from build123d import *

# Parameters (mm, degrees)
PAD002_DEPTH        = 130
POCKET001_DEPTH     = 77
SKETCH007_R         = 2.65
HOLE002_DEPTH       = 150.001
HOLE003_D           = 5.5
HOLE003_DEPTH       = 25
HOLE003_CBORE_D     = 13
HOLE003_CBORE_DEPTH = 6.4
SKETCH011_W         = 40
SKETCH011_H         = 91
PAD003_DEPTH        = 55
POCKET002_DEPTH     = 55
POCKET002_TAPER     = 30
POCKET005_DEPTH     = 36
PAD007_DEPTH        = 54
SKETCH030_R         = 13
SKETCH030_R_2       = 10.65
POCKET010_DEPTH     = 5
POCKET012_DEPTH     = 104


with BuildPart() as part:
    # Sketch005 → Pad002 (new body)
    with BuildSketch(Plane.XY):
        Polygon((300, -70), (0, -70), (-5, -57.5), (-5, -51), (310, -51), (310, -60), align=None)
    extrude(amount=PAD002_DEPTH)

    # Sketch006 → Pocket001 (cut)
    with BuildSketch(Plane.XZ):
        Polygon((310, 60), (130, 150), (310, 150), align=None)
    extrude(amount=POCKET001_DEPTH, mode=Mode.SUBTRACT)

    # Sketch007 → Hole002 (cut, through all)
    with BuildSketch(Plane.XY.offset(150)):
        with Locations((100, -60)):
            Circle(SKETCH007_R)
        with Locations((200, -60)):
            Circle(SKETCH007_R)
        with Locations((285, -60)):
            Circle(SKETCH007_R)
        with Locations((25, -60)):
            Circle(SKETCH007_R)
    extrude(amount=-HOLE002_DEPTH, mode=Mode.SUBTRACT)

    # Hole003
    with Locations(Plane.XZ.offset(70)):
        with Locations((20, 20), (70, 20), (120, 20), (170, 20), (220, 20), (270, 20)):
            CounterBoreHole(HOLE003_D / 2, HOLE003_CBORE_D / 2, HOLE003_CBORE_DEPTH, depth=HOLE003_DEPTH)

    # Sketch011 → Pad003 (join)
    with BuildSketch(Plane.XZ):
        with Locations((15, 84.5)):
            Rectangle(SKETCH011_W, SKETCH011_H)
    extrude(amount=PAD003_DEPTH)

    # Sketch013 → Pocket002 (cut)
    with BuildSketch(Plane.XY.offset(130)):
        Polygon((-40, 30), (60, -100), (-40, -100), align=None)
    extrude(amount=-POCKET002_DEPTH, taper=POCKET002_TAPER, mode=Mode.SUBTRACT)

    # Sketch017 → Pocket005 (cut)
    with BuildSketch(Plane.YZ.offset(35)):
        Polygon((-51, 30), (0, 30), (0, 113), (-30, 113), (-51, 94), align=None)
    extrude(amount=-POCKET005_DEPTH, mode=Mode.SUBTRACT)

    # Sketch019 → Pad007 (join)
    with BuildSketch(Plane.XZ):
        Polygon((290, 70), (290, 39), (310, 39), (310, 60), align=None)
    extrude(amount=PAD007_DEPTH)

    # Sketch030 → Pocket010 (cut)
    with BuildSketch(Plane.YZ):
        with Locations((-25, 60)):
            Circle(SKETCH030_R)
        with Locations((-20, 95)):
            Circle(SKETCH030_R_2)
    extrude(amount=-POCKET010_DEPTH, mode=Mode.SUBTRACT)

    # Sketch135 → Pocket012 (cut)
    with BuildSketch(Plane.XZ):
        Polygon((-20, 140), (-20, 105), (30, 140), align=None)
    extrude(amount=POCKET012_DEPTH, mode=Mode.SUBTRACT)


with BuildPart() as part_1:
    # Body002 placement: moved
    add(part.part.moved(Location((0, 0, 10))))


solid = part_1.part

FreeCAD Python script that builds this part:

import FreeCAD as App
import Part
import Sketcher
Q = App.Units.Quantity

doc = App.newDocument("Part")
params = doc.addObject("Spreadsheet::Sheet", "Params")
for row, (alias, value) in enumerate([
    ("sketch1_width", "300 mm"),
    ("sketch1_width2", "315 mm"),
    ("sketch1_height", "9 mm"),
    ("sketch1_height2", "6.5 mm"),
    ("pad1_length", "130 mm"),
    ("sketch2_width", "180 mm"),
    ("sketch2_height", "90 mm"),
    ("pocket1_length", "77 mm"),
    ("sketch3_diameter", "5.3 mm"),
    ("sketch4_diameter", "5.5 mm"),
    ("hole_diameter", "5.5 mm"),
    ("hole_depth", "25 mm"),
    ("hole_cbore_diameter", "13 mm"),
    ("hole_cbore_depth", "6.4 mm"),
    ("sketch5_width", "40 mm"),
    ("sketch5_height", "91 mm"),
    ("pad2_length", "55 mm"),
    ("sketch6_width", "100 mm"),
    ("sketch6_height", "130 mm"),
    ("pocket3_length", "55 mm"),
    ("pocket3_taper", "-30 deg"),
    ("sketch7_width", "51 mm"),
    ("sketch7_width2", "30 mm"),
    ("sketch7_height", "83 mm"),
    ("sketch7_height2", "64 mm"),
    ("pocket4_length", "36 mm"),
    ("sketch8_width", "20 mm"),
    ("sketch8_height", "31 mm"),
    ("sketch8_height2", "21 mm"),
    ("pad3_length", "54 mm"),
    ("sketch9_diameter", "26 mm"),
    ("sketch9_diameter2", "21.3 mm"),
    ("pocket5_length", "5 mm"),
    ("sketch10_width", "50 mm"),
    ("sketch10_height", "35 mm"),
    ("pocket6_length", "104 mm"),
], start=1):
    params.set(f"A{row}", alias)
    params.set(f"B{row}", "=" + value)
    params.setAlias(f"B{row}", alias)

body = doc.addObject("PartDesign::Body", "Body")

# Sketch on XY plane
sketch1 = body.newObject("Sketcher::SketchObject", "Sketch")
sketch1.AttachmentSupport = (doc.getObject("XY_Plane"), [""])
sketch1.MapMode = "FlatFace"
sketch1.addGeometry([
    Part.LineSegment(App.Vector(0, -70, 0), App.Vector(300, -70, 0)),  # 0
    Part.LineSegment(App.Vector(300, -70, 0), App.Vector(310, -60, 0)),  # 1
    Part.LineSegment(App.Vector(310, -60, 0), App.Vector(310, -51, 0)),  # 2
    Part.LineSegment(App.Vector(310, -51, 0), App.Vector(-5, -51, 0)),  # 3
    Part.LineSegment(App.Vector(-5, -51, 0), App.Vector(-5, -58, 0)),  # 4
    Part.LineSegment(App.Vector(-5, -58, 0), App.Vector(0, -70, 0)),  # 5
], False)
sketch1.addConstraint([
    Sketcher.Constraint("Coincident", 0, 2, 1, 1),
    Sketcher.Constraint("Coincident", 1, 2, 2, 1),
    Sketcher.Constraint("Coincident", 2, 2, 3, 1),
    Sketcher.Constraint("Coincident", 3, 2, 4, 1),
    Sketcher.Constraint("Coincident", 4, 2, 5, 1),
    Sketcher.Constraint("Coincident", 5, 2, 0, 1),
    Sketcher.Constraint("Horizontal", 0),
    Sketcher.Constraint("Vertical", 2),
    Sketcher.Constraint("Horizontal", 3),
    Sketcher.Constraint("Vertical", 4),
    Sketcher.Constraint("PointOnObject", 5, 2, -2),
    Sketcher.Constraint("DistanceX", 0, 1, 0, 2, Q("300 mm")),
    Sketcher.Constraint("DistanceX", 3, 2, 3, 1, Q("315 mm")),
    Sketcher.Constraint("DistanceY", 2, 1, 2, 2, Q("9 mm")),
    Sketcher.Constraint("Angle", 1, Q("45 deg")),
    Sketcher.Constraint("DistanceY", 4, 2, 4, 1, Q("6.5 mm")),
    Sketcher.Constraint("DistanceY", 0, 2, -1, 1, Q("70 mm")),
    Sketcher.Constraint("DistanceX", -1, 1, 1, 2, Q("310 mm")),
])
sketch1.setExpression("Constraints[11]", "Params.sketch1_width")
sketch1.setExpression("Constraints[12]", "Params.sketch1_width2")
sketch1.setExpression("Constraints[13]", "Params.sketch1_height")
sketch1.setExpression("Constraints[15]", "Params.sketch1_height2")
pad1 = body.newObject("PartDesign::Pad", "Pad")
pad1.Profile = sketch1
pad1.setExpression("Length", "Params.pad1_length")

# Sketch on XZ plane
sketch2 = body.newObject("Sketcher::SketchObject", "Sketch001")
sketch2.AttachmentSupport = (doc.getObject("XZ_Plane"), [""])
sketch2.MapMode = "FlatFace"
sketch2.addGeometry([
    Part.LineSegment(App.Vector(130, 150, 0), App.Vector(310, 60, 0)),
    Part.LineSegment(App.Vector(310, 60, 0), App.Vector(310, 150, 0)),
    Part.LineSegment(App.Vector(310, 150, 0), App.Vector(130, 150, 0)),
], False)
sketch2.addConstraint([
    Sketcher.Constraint("Coincident", 0, 2, 1, 1),
    Sketcher.Constraint("Coincident", 1, 2, 2, 1),
    Sketcher.Constraint("Coincident", 2, 2, 0, 1),
    Sketcher.Constraint("Vertical", 1),
    Sketcher.Constraint("Horizontal", 2),
    Sketcher.Constraint("DistanceX", 2, 2, 2, 1, Q("180 mm")),
    Sketcher.Constraint("DistanceY", 1, 1, 1, 2, Q("90 mm")),
    Sketcher.Constraint("DistanceX", -1, 1, 0, 2, Q("310 mm")),
    Sketcher.Constraint("DistanceY", -1, 1, 0, 2, Q("60 mm")),
])
sketch2.setExpression("Constraints[5]", "Params.sketch2_width")
sketch2.setExpression("Constraints[6]", "Params.sketch2_height")
pocket1 = body.newObject("PartDesign::Pocket", "Pocket")
pocket1.Profile = sketch2
pocket1.setExpression("Length", "Params.pocket1_length")
pocket1.Reversed = True

# Sketch on XY plane
sketch3 = body.newObject("Sketcher::SketchObject", "Sketch002")
sketch3.AttachmentSupport = (doc.getObject("XY_Plane"), [""])
sketch3.MapMode = "FlatFace"
sketch3.AttachmentOffset = App.Placement(App.Vector(0, 0, 150), App.Rotation())
sketch3.addGeometry([
    Part.Circle(App.Vector(100, -60, 0), App.Vector(0, 0, 1), 2.6),
    Part.Circle(App.Vector(200, -60, 0), App.Vector(0, 0, 1), 2.6),
    Part.Circle(App.Vector(285, -60, 0), App.Vector(0, 0, 1), 2.6),
    Part.Circle(App.Vector(25, -60, 0), App.Vector(0, 0, 1), 2.6),
], False)
sketch3.addConstraint([
    Sketcher.Constraint("Equal", 0, 1),
    Sketcher.Constraint("Equal", 1, 2),
    Sketcher.Constraint("Equal", 2, 3),
    Sketcher.Constraint("Horizontal", 0, 3, 1, 3),
    Sketcher.Constraint("Horizontal", 1, 3, 2, 3),
    Sketcher.Constraint("Horizontal", 2, 3, 3, 3),
    Sketcher.Constraint("Diameter", 0, Q("5.3 mm")),
    Sketcher.Constraint("DistanceX", -1, 1, 0, 3, Q("100 mm")),
    Sketcher.Constraint("DistanceY", 0, 3, -1, 1, Q("60 mm")),
    Sketcher.Constraint("DistanceX", -1, 1, 1, 3, Q("200 mm")),
    Sketcher.Constraint("DistanceX", -1, 1, 2, 3, Q("285 mm")),
    Sketcher.Constraint("DistanceX", -1, 1, 3, 3, Q("25 mm")),
])
sketch3.setExpression("Constraints[6]", "Params.sketch3_diameter")
pocket2 = body.newObject("PartDesign::Pocket", "Pocket001")
pocket2.Profile = sketch3
pocket2.Type = "ThroughAll"

# Sketch on XZ plane
sketch4 = body.newObject("Sketcher::SketchObject", "Sketch003")
sketch4.AttachmentSupport = (doc.getObject("XZ_Plane"), [""])
sketch4.MapMode = "FlatFace"
sketch4.AttachmentOffset = App.Placement(App.Vector(0, 0, 70), App.Rotation())
sketch4.addGeometry([
    Part.Circle(App.Vector(20, 20, 0), App.Vector(0, 0, 1), 2.8),  # 0
    Part.Circle(App.Vector(70, 20, 0), App.Vector(0, 0, 1), 2.8),  # 1
    Part.Circle(App.Vector(120, 20, 0), App.Vector(0, 0, 1), 2.8),  # 2
    Part.Circle(App.Vector(170, 20, 0), App.Vector(0, 0, 1), 2.8),  # 3
    Part.Circle(App.Vector(220, 20, 0), App.Vector(0, 0, 1), 2.8),  # 4
    Part.Circle(App.Vector(270, 20, 0), App.Vector(0, 0, 1), 2.8),  # 5
], False)
sketch4.addConstraint([
    Sketcher.Constraint("Equal", 0, 1),
    Sketcher.Constraint("Equal", 1, 2),
    Sketcher.Constraint("Equal", 2, 3),
    Sketcher.Constraint("Equal", 3, 4),
    Sketcher.Constraint("Equal", 4, 5),
    Sketcher.Constraint("Horizontal", 0, 3, 1, 3),
    Sketcher.Constraint("Horizontal", 1, 3, 2, 3),
    Sketcher.Constraint("Horizontal", 2, 3, 3, 3),
    Sketcher.Constraint("Horizontal", 3, 3, 4, 3),
    Sketcher.Constraint("Horizontal", 4, 3, 5, 3),
    Sketcher.Constraint("Diameter", 0, Q("5.5 mm")),
    Sketcher.Constraint("DistanceX", -1, 1, 0, 3, Q("20 mm")),
    Sketcher.Constraint("DistanceY", -1, 1, 0, 3, Q("20 mm")),
    Sketcher.Constraint("DistanceX", -1, 1, 1, 3, Q("70 mm")),
    Sketcher.Constraint("DistanceX", -1, 1, 2, 3, Q("120 mm")),
    Sketcher.Constraint("DistanceX", -1, 1, 3, 3, Q("170 mm")),
    Sketcher.Constraint("DistanceX", -1, 1, 4, 3, Q("220 mm")),
    Sketcher.Constraint("DistanceX", -1, 1, 5, 3, Q("270 mm")),
])
sketch4.setExpression("Constraints[10]", "Params.sketch4_diameter")
doc.recompute()
hole = body.newObject("PartDesign::Hole", "Hole")
hole.Profile = sketch4
hole.ThreadType = "None"
hole.setExpression("Diameter", "Params.hole_diameter")
hole.DepthType = "Dimension"
hole.setExpression("Depth", "Params.hole_depth")
hole.DrillPoint = "Flat"
hole.HoleCutType = "Counterbore"
hole.setExpression("HoleCutDiameter", "Params.hole_cbore_diameter")
hole.setExpression("HoleCutDepth", "Params.hole_cbore_depth")

# Sketch on XZ plane
sketch5 = body.newObject("Sketcher::SketchObject", "Sketch004")
sketch5.AttachmentSupport = (doc.getObject("XZ_Plane"), [""])
sketch5.MapMode = "FlatFace"
sketch5.addGeometry([
    Part.LineSegment(App.Vector(-5, 130, 0), App.Vector(-5, 39, 0)),
    Part.LineSegment(App.Vector(-5, 39, 0), App.Vector(35, 39, 0)),
    Part.LineSegment(App.Vector(35, 39, 0), App.Vector(35, 130, 0)),
    Part.LineSegment(App.Vector(35, 130, 0), App.Vector(-5, 130, 0)),
], False)
sketch5.addConstraint([
    Sketcher.Constraint("Coincident", 0, 2, 1, 1),
    Sketcher.Constraint("Coincident", 1, 2, 2, 1),
    Sketcher.Constraint("Coincident", 2, 2, 3, 1),
    Sketcher.Constraint("Coincident", 3, 2, 0, 1),
    Sketcher.Constraint("Vertical", 0),
    Sketcher.Constraint("Horizontal", 1),
    Sketcher.Constraint("Vertical", 2),
    Sketcher.Constraint("Horizontal", 3),
    Sketcher.Constraint("DistanceX", 1, 1, 1, 2, Q("40 mm")),
    Sketcher.Constraint("DistanceY", 0, 2, 0, 1, Q("91 mm")),
    Sketcher.Constraint("DistanceX", 0, 2, -1, 1, Q("5 mm")),
    Sketcher.Constraint("DistanceY", -1, 1, 0, 2, Q("39 mm")),
])
sketch5.setExpression("Constraints[8]", "Params.sketch5_width")
sketch5.setExpression("Constraints[9]", "Params.sketch5_height")
pad2 = body.newObject("PartDesign::Pad", "Pad001")
pad2.Profile = sketch5
pad2.setExpression("Length", "Params.pad2_length")

# Sketch on XY plane
sketch6 = body.newObject("Sketcher::SketchObject", "Sketch005")
sketch6.AttachmentSupport = (doc.getObject("XY_Plane"), [""])
sketch6.MapMode = "FlatFace"
sketch6.AttachmentOffset = App.Placement(App.Vector(0, 0, 130), App.Rotation())
sketch6.addGeometry([
    Part.LineSegment(App.Vector(60, -100, 0), App.Vector(-40, 30, 0)),
    Part.LineSegment(App.Vector(-40, 30, 0), App.Vector(-40, -100, 0)),
    Part.LineSegment(App.Vector(-40, -100, 0), App.Vector(60, -100, 0)),
], False)
sketch6.addConstraint([
    Sketcher.Constraint("Coincident", 0, 2, 1, 1),
    Sketcher.Constraint("Coincident", 1, 2, 2, 1),
    Sketcher.Constraint("Coincident", 2, 2, 0, 1),
    Sketcher.Constraint("Vertical", 1),
    Sketcher.Constraint("Horizontal", 2),
    Sketcher.Constraint("DistanceX", 2, 1, 2, 2, Q("100 mm")),
    Sketcher.Constraint("DistanceY", 1, 2, 1, 1, Q("130 mm")),
    Sketcher.Constraint("DistanceX", 0, 2, -1, 1, Q("40 mm")),
    Sketcher.Constraint("DistanceY", -1, 1, 0, 2, Q("30 mm")),
])
sketch6.setExpression("Constraints[5]", "Params.sketch6_width")
sketch6.setExpression("Constraints[6]", "Params.sketch6_height")
pocket3 = body.newObject("PartDesign::Pocket", "Pocket002")
pocket3.Profile = sketch6
pocket3.setExpression("Length", "Params.pocket3_length")
pocket3.setExpression("TaperAngle", "Params.pocket3_taper")

# Sketch on YZ plane
sketch7 = body.newObject("Sketcher::SketchObject", "Sketch006")
sketch7.AttachmentSupport = (doc.getObject("YZ_Plane"), [""])
sketch7.MapMode = "FlatFace"
sketch7.AttachmentOffset = App.Placement(App.Vector(0, 0, 35), App.Rotation())
sketch7.addGeometry([
    Part.LineSegment(App.Vector(-51, 30, 0), App.Vector(0, 30, 0)),  # 0
    Part.LineSegment(App.Vector(0, 30, 0), App.Vector(0, 113, 0)),  # 1
    Part.LineSegment(App.Vector(0, 113, 0), App.Vector(-30, 113, 0)),  # 2
    Part.LineSegment(App.Vector(-30, 113, 0), App.Vector(-51, 94, 0)),  # 3
    Part.LineSegment(App.Vector(-51, 94, 0), App.Vector(-51, 30, 0)),  # 4
], False)
sketch7.addConstraint([
    Sketcher.Constraint("Coincident", 0, 2, 1, 1),
    Sketcher.Constraint("Coincident", 1, 2, 2, 1),
    Sketcher.Constraint("Coincident", 2, 2, 3, 1),
    Sketcher.Constraint("Coincident", 3, 2, 4, 1),
    Sketcher.Constraint("Coincident", 4, 2, 0, 1),
    Sketcher.Constraint("Horizontal", 0),
    Sketcher.Constraint("Vertical", 1),
    Sketcher.Constraint("Horizontal", 2),
    Sketcher.Constraint("Vertical", 4),
    Sketcher.Constraint("PointOnObject", 0, 2, -2),
    Sketcher.Constraint("DistanceX", 0, 1, 0, 2, Q("51 mm")),
    Sketcher.Constraint("DistanceX", 2, 2, 2, 1, Q("30 mm")),
    Sketcher.Constraint("DistanceY", 1, 1, 1, 2, Q("83 mm")),
    Sketcher.Constraint("DistanceY", 4, 2, 4, 1, Q("64 mm")),
    Sketcher.Constraint("DistanceY", -1, 1, 0, 2, Q("30 mm")),
])
sketch7.setExpression("Constraints[10]", "Params.sketch7_width")
sketch7.setExpression("Constraints[11]", "Params.sketch7_width2")
sketch7.setExpression("Constraints[12]", "Params.sketch7_height")
sketch7.setExpression("Constraints[13]", "Params.sketch7_height2")
pocket4 = body.newObject("PartDesign::Pocket", "Pocket003")
pocket4.Profile = sketch7
pocket4.setExpression("Length", "Params.pocket4_length")

# Sketch on XZ plane
sketch8 = body.newObject("Sketcher::SketchObject", "Sketch007")
sketch8.AttachmentSupport = (doc.getObject("XZ_Plane"), [""])
sketch8.MapMode = "FlatFace"
sketch8.addGeometry([
    Part.LineSegment(App.Vector(290, 70, 0), App.Vector(290, 39, 0)),
    Part.LineSegment(App.Vector(290, 39, 0), App.Vector(310, 39, 0)),
    Part.LineSegment(App.Vector(310, 39, 0), App.Vector(310, 60, 0)),
    Part.LineSegment(App.Vector(310, 60, 0), App.Vector(290, 70, 0)),
], False)
sketch8.addConstraint([
    Sketcher.Constraint("Coincident", 0, 2, 1, 1),
    Sketcher.Constraint("Coincident", 1, 2, 2, 1),
    Sketcher.Constraint("Coincident", 2, 2, 3, 1),
    Sketcher.Constraint("Coincident", 3, 2, 0, 1),
    Sketcher.Constraint("Vertical", 0),
    Sketcher.Constraint("Horizontal", 1),
    Sketcher.Constraint("Vertical", 2),
    Sketcher.Constraint("DistanceX", 1, 1, 1, 2, Q("20 mm")),
    Sketcher.Constraint("DistanceY", 0, 2, 0, 1, Q("31 mm")),
    Sketcher.Constraint("DistanceY", 2, 1, 2, 2, Q("21 mm")),
    Sketcher.Constraint("DistanceX", -1, 1, 0, 2, Q("290 mm")),
    Sketcher.Constraint("DistanceY", -1, 1, 0, 2, Q("39 mm")),
])
sketch8.setExpression("Constraints[7]", "Params.sketch8_width")
sketch8.setExpression("Constraints[8]", "Params.sketch8_height")
sketch8.setExpression("Constraints[9]", "Params.sketch8_height2")
pad3 = body.newObject("PartDesign::Pad", "Pad002")
pad3.Profile = sketch8
pad3.setExpression("Length", "Params.pad3_length")

# Sketch on YZ plane
sketch9 = body.newObject("Sketcher::SketchObject", "Sketch008")
sketch9.AttachmentSupport = (doc.getObject("YZ_Plane"), [""])
sketch9.MapMode = "FlatFace"
sketch9.addGeometry([
    Part.Circle(App.Vector(-25, 60, 0), App.Vector(0, 0, 1), 13),
    Part.Circle(App.Vector(-20, 95, 0), App.Vector(0, 0, 1), 11),
], False)
sketch9.addConstraint([
    Sketcher.Constraint("Diameter", 0, Q("26 mm")),
    Sketcher.Constraint("Diameter", 1, Q("21.3 mm")),
    Sketcher.Constraint("DistanceX", 0, 3, -1, 1, Q("25 mm")),
    Sketcher.Constraint("DistanceY", -1, 1, 0, 3, Q("60 mm")),
    Sketcher.Constraint("DistanceX", 1, 3, -1, 1, Q("20 mm")),
    Sketcher.Constraint("DistanceY", -1, 1, 1, 3, Q("95 mm")),
])
sketch9.setExpression("Constraints[0]", "Params.sketch9_diameter")
sketch9.setExpression("Constraints[1]", "Params.sketch9_diameter2")
pocket5 = body.newObject("PartDesign::Pocket", "Pocket004")
pocket5.Profile = sketch9
pocket5.setExpression("Length", "Params.pocket5_length")

# Sketch on XZ plane
sketch10 = body.newObject("Sketcher::SketchObject", "Sketch009")
sketch10.AttachmentSupport = (doc.getObject("XZ_Plane"), [""])
sketch10.MapMode = "FlatFace"
sketch10.addGeometry([
    Part.LineSegment(App.Vector(-20, 140, 0), App.Vector(-20, 105, 0)),
    Part.LineSegment(App.Vector(-20, 105, 0), App.Vector(30, 140, 0)),
    Part.LineSegment(App.Vector(30, 140, 0), App.Vector(-20, 140, 0)),
], False)
sketch10.addConstraint([
    Sketcher.Constraint("Coincident", 0, 2, 1, 1),
    Sketcher.Constraint("Coincident", 1, 2, 2, 1),
    Sketcher.Constraint("Coincident", 2, 2, 0, 1),
    Sketcher.Constraint("Vertical", 0),
    Sketcher.Constraint("Horizontal", 2),
    Sketcher.Constraint("DistanceX", 2, 2, 2, 1, Q("50 mm")),
    Sketcher.Constraint("DistanceY", 0, 2, 0, 1, Q("35 mm")),
    Sketcher.Constraint("DistanceX", 0, 2, -1, 1, Q("20 mm")),
    Sketcher.Constraint("DistanceY", -1, 1, 0, 2, Q("105 mm")),
])
sketch10.setExpression("Constraints[5]", "Params.sketch10_width")
sketch10.setExpression("Constraints[6]", "Params.sketch10_height")
pocket6 = body.newObject("PartDesign::Pocket", "Pocket005")
pocket6.Profile = sketch10
pocket6.setExpression("Length", "Params.pocket6_length")
pocket6.Reversed = True
body2 = doc.addObject("PartDesign::Body", "Body001")
doc.recompute()

body.Placement = App.Placement(App.Vector(0, 0, 10), App.Rotation(App.Vector(0, 0, 1), 0))
boolean = body2.newObject("PartDesign::Boolean", "Boolean")
boolean.Type = "Fuse"
boolean.addObjects([body])

doc.recompute()
